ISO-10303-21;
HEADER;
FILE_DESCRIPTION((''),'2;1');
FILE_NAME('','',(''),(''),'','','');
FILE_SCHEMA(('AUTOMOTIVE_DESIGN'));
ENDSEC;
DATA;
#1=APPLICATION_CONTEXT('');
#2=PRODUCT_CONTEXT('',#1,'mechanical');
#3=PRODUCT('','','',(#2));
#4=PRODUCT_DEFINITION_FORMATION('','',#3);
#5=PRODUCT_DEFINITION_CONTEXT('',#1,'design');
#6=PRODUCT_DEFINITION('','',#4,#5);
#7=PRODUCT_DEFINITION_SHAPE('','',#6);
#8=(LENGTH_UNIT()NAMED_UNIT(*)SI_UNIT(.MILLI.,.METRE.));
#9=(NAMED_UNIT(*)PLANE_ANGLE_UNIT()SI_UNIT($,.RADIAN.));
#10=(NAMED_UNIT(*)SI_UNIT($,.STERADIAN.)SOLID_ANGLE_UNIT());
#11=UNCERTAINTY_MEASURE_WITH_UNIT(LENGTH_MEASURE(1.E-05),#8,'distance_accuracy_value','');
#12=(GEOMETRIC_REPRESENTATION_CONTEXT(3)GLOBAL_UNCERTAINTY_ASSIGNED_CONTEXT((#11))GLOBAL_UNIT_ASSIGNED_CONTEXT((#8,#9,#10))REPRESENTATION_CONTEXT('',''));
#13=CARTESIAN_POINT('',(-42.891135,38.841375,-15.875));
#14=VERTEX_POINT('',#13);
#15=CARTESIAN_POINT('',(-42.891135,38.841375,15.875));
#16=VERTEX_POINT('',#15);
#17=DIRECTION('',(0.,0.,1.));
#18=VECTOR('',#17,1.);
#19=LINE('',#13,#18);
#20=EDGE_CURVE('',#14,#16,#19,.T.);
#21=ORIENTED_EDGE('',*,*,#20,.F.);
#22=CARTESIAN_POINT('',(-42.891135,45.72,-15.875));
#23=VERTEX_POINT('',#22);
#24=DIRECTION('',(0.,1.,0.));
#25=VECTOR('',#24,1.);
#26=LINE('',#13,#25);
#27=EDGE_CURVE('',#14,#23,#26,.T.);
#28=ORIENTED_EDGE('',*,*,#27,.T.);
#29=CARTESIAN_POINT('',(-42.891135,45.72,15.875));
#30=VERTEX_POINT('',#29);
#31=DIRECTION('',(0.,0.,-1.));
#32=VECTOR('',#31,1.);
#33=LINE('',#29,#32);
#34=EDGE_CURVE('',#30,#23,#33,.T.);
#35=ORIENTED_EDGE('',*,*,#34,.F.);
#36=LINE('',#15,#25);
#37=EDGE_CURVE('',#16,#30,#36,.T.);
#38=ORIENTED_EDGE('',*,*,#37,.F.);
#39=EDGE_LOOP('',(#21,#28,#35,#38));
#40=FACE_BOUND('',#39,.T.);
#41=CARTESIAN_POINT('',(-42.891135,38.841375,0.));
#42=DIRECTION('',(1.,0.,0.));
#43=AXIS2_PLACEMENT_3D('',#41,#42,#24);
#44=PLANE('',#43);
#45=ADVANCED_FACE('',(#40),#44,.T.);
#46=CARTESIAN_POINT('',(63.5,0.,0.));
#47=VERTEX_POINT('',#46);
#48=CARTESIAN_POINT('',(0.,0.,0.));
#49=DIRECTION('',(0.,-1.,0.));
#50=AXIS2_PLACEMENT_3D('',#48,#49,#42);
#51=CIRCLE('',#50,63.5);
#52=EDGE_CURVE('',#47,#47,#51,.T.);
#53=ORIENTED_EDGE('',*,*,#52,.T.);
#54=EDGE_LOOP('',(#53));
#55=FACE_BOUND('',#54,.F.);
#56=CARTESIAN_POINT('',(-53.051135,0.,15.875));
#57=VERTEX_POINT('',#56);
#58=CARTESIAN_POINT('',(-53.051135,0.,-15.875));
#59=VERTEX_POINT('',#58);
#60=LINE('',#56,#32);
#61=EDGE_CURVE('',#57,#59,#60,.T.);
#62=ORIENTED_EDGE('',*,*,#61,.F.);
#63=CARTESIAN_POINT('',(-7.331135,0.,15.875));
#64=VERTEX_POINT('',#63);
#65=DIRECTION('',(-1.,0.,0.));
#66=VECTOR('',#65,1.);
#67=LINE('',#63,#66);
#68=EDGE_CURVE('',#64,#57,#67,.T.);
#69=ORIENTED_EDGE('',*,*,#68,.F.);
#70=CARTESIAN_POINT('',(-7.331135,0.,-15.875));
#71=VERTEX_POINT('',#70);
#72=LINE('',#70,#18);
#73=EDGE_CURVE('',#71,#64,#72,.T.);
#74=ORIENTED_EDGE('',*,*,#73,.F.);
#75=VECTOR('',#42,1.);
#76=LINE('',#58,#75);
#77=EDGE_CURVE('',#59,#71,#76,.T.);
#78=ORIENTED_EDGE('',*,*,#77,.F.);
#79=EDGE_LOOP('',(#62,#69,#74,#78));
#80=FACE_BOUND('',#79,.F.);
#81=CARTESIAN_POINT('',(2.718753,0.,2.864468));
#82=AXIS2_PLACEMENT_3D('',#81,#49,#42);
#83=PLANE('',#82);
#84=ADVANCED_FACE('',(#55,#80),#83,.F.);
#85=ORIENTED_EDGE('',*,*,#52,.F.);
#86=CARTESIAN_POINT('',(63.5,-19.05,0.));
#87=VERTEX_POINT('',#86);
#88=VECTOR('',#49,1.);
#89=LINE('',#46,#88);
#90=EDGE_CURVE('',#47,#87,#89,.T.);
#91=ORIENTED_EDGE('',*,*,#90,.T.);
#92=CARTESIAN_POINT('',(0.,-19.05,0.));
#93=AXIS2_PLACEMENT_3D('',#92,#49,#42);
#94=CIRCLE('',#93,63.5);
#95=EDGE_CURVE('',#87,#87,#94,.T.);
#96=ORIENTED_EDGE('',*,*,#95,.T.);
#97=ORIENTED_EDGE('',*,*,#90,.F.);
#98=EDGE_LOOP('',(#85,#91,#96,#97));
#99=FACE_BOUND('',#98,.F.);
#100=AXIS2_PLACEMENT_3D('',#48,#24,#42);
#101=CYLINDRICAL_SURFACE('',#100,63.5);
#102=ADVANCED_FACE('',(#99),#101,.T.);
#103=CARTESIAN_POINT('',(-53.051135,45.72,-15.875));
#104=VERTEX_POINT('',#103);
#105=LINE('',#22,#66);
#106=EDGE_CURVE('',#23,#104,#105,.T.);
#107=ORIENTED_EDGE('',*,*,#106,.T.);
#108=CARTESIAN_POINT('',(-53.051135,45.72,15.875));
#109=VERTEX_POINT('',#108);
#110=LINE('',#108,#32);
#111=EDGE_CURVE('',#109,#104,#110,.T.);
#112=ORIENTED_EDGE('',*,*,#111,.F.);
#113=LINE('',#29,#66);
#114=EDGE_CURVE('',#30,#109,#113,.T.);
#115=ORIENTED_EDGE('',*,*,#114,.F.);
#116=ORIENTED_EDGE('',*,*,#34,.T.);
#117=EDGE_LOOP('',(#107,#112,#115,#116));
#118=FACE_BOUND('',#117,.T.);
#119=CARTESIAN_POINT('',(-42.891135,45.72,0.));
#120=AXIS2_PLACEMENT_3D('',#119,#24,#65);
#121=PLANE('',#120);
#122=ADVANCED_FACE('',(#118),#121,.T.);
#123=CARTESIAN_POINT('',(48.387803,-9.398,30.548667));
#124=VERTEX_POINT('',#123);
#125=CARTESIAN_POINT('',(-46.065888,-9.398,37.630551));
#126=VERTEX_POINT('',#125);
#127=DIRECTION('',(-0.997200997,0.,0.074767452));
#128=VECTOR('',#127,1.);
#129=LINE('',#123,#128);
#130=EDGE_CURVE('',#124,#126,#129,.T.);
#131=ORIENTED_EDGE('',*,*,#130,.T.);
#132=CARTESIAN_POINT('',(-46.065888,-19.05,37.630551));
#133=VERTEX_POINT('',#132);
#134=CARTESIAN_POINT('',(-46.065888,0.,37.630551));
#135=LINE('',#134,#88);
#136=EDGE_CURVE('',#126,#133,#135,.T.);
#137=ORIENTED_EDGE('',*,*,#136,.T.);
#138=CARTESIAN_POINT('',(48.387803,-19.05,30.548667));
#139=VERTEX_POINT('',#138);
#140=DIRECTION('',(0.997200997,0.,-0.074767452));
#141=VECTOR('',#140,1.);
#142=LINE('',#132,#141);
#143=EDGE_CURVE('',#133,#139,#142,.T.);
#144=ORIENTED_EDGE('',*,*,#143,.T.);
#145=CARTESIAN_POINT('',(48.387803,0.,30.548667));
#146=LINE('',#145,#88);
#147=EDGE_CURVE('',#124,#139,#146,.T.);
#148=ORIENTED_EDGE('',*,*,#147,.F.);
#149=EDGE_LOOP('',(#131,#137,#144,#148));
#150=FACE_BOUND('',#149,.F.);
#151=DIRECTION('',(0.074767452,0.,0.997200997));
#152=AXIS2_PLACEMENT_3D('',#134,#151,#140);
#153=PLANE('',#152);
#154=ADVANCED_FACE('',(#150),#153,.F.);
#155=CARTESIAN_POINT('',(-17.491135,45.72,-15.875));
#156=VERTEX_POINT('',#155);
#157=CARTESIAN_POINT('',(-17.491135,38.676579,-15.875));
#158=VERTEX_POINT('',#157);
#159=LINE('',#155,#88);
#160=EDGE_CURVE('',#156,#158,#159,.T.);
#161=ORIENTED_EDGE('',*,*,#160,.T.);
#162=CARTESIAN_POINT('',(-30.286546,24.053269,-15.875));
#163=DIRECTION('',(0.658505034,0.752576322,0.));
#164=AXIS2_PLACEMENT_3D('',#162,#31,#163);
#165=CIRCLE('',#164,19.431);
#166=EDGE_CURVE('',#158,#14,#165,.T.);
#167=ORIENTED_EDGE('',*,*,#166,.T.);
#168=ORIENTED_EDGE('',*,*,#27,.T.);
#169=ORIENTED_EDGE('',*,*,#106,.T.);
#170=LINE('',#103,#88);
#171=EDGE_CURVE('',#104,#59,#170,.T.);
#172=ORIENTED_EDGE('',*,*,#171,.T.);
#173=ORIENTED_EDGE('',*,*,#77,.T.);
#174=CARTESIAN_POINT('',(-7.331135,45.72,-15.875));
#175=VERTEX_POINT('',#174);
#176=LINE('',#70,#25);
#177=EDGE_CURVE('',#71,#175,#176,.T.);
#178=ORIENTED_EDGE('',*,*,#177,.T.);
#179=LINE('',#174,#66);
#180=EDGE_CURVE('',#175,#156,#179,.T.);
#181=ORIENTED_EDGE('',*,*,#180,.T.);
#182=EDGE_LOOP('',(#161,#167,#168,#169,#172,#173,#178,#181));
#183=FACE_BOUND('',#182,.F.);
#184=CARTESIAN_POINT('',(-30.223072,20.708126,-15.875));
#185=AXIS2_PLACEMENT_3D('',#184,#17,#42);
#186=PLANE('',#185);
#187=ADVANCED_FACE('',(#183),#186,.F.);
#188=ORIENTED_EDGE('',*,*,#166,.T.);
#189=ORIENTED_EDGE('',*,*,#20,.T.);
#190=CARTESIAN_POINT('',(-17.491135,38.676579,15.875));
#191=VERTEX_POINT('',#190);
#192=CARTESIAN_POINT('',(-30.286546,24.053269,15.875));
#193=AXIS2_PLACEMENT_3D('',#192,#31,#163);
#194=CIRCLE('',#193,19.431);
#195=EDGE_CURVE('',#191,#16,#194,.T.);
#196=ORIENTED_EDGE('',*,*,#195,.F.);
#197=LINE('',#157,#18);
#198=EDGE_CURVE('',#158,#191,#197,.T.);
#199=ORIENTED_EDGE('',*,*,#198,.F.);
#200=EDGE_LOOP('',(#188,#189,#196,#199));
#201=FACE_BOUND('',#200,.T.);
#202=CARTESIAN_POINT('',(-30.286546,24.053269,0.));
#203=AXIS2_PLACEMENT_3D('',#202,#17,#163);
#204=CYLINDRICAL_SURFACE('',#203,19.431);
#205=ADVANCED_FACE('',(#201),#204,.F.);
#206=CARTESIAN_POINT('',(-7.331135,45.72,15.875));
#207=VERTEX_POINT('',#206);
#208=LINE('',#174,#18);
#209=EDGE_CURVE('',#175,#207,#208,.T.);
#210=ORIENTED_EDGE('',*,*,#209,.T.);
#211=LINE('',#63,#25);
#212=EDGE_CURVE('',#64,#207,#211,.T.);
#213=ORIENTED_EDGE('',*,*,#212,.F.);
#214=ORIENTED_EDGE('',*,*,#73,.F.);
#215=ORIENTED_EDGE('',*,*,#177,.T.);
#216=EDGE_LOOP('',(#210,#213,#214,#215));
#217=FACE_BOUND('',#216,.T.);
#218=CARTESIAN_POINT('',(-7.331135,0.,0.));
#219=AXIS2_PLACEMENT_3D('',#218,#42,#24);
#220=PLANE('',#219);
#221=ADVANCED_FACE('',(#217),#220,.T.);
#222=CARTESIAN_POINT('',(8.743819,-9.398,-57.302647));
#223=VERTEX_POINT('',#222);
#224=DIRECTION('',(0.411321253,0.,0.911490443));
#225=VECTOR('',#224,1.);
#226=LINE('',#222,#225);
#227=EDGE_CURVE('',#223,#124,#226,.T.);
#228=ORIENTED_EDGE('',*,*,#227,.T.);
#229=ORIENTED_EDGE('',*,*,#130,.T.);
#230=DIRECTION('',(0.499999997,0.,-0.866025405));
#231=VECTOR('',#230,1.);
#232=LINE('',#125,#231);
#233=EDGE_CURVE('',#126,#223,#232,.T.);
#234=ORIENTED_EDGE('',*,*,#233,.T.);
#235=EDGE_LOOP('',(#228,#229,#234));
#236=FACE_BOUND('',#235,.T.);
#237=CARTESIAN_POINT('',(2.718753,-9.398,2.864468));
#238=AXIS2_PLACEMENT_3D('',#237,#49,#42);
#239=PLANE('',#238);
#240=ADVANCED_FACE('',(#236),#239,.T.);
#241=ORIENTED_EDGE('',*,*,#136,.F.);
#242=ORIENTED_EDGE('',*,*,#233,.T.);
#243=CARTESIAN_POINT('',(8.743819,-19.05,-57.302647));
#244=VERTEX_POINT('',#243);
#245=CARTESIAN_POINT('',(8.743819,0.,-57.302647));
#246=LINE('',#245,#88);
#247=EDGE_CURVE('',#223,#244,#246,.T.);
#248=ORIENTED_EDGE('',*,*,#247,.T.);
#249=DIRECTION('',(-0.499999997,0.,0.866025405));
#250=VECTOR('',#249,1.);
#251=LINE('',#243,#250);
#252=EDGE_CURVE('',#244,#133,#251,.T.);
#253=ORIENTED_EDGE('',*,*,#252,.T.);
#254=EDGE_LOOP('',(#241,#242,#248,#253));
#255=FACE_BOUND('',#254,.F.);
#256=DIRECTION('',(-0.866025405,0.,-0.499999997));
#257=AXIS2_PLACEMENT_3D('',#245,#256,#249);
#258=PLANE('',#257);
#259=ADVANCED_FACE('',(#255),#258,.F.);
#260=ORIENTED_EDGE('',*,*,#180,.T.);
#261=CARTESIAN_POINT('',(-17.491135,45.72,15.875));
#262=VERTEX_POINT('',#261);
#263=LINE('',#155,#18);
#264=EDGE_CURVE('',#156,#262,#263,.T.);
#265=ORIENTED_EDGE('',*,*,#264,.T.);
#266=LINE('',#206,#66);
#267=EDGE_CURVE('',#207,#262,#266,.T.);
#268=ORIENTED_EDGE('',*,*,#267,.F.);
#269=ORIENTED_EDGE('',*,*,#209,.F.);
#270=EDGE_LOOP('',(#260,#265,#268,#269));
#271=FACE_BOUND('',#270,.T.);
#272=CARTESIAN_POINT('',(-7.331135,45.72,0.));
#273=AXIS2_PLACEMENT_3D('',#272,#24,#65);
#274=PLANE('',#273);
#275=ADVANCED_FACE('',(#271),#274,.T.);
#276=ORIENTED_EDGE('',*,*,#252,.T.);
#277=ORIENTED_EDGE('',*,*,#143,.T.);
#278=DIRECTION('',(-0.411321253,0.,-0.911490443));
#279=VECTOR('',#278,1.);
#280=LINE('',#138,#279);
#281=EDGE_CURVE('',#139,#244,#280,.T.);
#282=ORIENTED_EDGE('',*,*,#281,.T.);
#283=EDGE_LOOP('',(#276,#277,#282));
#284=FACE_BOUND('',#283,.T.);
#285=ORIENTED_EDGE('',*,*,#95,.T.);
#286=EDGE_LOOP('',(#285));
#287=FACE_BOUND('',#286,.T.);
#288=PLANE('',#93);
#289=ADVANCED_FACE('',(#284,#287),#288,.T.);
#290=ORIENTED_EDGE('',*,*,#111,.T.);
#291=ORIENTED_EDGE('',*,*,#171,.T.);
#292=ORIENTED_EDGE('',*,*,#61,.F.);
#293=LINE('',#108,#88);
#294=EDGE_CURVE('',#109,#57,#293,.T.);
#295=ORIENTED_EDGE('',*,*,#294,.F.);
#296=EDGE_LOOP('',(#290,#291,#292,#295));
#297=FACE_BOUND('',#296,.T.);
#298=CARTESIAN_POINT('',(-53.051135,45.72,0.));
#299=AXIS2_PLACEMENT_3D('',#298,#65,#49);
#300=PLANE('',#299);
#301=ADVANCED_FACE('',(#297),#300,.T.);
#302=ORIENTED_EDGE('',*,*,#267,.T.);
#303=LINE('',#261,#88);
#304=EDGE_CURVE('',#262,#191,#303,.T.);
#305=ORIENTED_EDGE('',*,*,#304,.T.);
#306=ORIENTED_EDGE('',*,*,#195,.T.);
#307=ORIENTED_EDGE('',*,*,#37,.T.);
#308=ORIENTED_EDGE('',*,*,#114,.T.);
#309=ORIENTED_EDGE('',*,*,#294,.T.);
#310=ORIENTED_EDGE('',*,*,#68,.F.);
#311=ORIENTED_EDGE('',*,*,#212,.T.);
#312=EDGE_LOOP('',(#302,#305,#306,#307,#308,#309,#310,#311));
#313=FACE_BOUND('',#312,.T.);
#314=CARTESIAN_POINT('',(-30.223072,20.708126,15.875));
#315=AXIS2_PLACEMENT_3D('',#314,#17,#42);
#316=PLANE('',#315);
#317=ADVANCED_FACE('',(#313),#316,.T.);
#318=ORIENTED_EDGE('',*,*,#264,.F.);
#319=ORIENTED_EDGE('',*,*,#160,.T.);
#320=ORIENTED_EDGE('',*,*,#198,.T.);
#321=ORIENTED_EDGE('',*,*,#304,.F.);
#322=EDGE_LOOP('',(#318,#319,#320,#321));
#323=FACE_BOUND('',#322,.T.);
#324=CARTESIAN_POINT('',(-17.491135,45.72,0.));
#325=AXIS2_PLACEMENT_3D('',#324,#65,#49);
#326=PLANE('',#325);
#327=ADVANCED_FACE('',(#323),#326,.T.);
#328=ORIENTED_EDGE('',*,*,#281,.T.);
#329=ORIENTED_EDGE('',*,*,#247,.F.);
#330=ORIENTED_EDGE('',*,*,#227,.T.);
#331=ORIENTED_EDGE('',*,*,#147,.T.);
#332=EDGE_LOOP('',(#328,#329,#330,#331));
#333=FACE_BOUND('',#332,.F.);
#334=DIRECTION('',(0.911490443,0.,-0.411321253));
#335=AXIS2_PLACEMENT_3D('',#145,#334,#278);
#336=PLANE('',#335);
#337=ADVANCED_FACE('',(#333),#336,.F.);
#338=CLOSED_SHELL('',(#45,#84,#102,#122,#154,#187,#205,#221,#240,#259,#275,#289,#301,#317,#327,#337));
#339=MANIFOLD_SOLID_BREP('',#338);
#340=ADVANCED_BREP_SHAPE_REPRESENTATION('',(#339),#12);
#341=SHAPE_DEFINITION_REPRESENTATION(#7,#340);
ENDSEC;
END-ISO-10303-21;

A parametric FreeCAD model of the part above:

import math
import FreeCAD as App
import Part
import Sketcher

V = App.Vector
Q = App.Units.Quantity

doc = App.newDocument("Part")
body = doc.addObject("PartDesign::Body", "Body")

# Sketch on XZ plane
sketch1 = doc.addObject("Sketcher::SketchObject", "Sketch")
body.addObject(sketch1)
sketch1.AttachmentSupport = (doc.XZ_Plane, [""])
sketch1.MapMode = "FlatFace"
sketch1.addGeometry([
    Part.Circle(V(0, 0, 0), V(0, 0, 1), 64),
    Part.LineSegment(V(48, 31, 0), V(9, -57, 0)),
    Part.LineSegment(V(9, -57, 0), V(-46, 38, 0)),
    Part.LineSegment(V(-46, 38, 0), V(48, 31, 0)),
], False)
sketch1.addConstraint([
    Sketcher.Constraint("Coincident", 1, 2, 2, 1),
    Sketcher.Constraint("Coincident", 2, 2, 3, 1),
    Sketcher.Constraint("Coincident", 3, 2, 1, 1),
    Sketcher.Constraint("Coincident", 0, 3, -1, 1),
    Sketcher.Constraint("Diameter", 0, Q("5 in")),
    Sketcher.Constraint("Angle", 2, Q("120 deg")),
    Sketcher.Constraint("DistanceY", 1, 2, 2, 2, 94.933198),
    Sketcher.Constraint("Distance", 3, 94.718809),
    Sketcher.Constraint("DistanceX", -1, 1, 1, 2, 8.743819),
    Sketcher.Constraint("DistanceY", -1, 1, 2, 2, 37.630551),
    Sketcher.Constraint("DistanceX", 2, 2, 3, 2, 94.453691),
])
pad1 = doc.addObject("PartDesign::Pad", "Pad")
body.addObject(pad1)
pad1.Profile = sketch1
pad1.Length = Q("0.75 in")

# Sketch on XZ plane
sketch2 = doc.addObject("Sketcher::SketchObject", "Sketch001")
body.addObject(sketch2)
sketch2.AttachmentSupport = (doc.XZ_Plane, [""])
sketch2.MapMode = "FlatFace"
sketch2.addGeometry([
    Part.LineSegment(V(48, 31, 0), V(-46, 38, 0)),
    Part.LineSegment(V(-46, 38, 0), V(9, -57, 0)),
    Part.LineSegment(V(9, -57, 0), V(48, 31, 0)),
], False)
sketch2.addConstraint([
    Sketcher.Constraint("Coincident", 0, 2, 1, 1),
    Sketcher.Constraint("Coincident", 1, 2, 2, 1),
    Sketcher.Constraint("Coincident", 2, 2, 0, 1),
    Sketcher.Constraint("Angle", 1, Q("-60 deg")),
    Sketcher.Constraint("DistanceY", 1, 2, 0, 2, 94.933198),
    Sketcher.Constraint("Distance", 0, 94.718809),
    Sketcher.Constraint("DistanceY", -1, 1, 0, 2, 37.630551),
    Sketcher.Constraint("DistanceX", -1, 1, 1, 2, 8.743819),
    Sketcher.Constraint("DistanceX", 0, 2, 2, 2, 94.453691),
])
pad2 = doc.addObject("PartDesign::Pad", "Pad001")
body.addObject(pad2)
pad2.Profile = sketch2
pad2.Length = Q("0.37 in")

# Sketch on XY plane
sketch3 = doc.addObject("Sketcher::SketchObject", "Sketch002")
body.addObject(sketch3)
sketch3.AttachmentSupport = (doc.XY_Plane, [""])
sketch3.MapMode = "FlatFace"
sketch3.addGeometry([
    Part.LineSegment(V(-53, 0, 0), V(-7, 0, 0)),  # 0
    Part.LineSegment(V(-7, 0, 0), V(-7, 46, 0)),  # 1
    Part.LineSegment(V(-7, 46, 0), V(-17, 46, 0)),  # 2
    Part.LineSegment(V(-17, 46, 0), V(-17, 39, 0)),  # 3
    Part.ArcOfCircle(Part.Circle(V(-30, 24, 0), V(0, 0, 1), 19), math.radians(130), math.radians(409)),  # 4
    Part.LineSegment(V(-43, 39, 0), V(-43, 46, 0)),  # 5
    Part.LineSegment(V(-43, 46, 0), V(-53, 46, 0)),  # 6
    Part.LineSegment(V(-53, 46, 0), V(-53, 0, 0)),  # 7
], False)
sketch3.addConstraint([
    Sketcher.Constraint("Coincident", 0, 2, 1, 1),
    Sketcher.Constraint("Coincident", 1, 2, 2, 1),
    Sketcher.Constraint("Coincident", 2, 2, 3, 1),
    Sketcher.Constraint("Coincident", 3, 2, 4, 2),
    Sketcher.Constraint("Coincident", 4, 1, 5, 1),
    Sketcher.Constraint("Coincident", 5, 2, 6, 1),
    Sketcher.Constraint("Coincident", 6, 2, 7, 1),
    Sketcher.Constraint("Coincident", 7, 2, 0, 1),
    Sketcher.Constraint("Horizontal", 0),
    Sketcher.Constraint("Vertical", 1),
    Sketcher.Constraint("Horizontal", 2),
    Sketcher.Constraint("Vertical", 3),
    Sketcher.Constraint("Vertical", 5),
    Sketcher.Constraint("Horizontal", 6),
    Sketcher.Constraint("Vertical", 7),
    Sketcher.Constraint("PointOnObject", 0, 2, -1),
    Sketcher.Constraint("Horizontal", 2, 2, 5, 2),
    Sketcher.Constraint("Equal", 2, 6),
    Sketcher.Constraint("Equal", 0, 1),
    Sketcher.Constraint("DistanceX", 0, 1, 0, 2, Q("1.8 in")),
    Sketcher.Constraint("DistanceX", 2, 2, 2, 1, Q("0.4 in")),
    Sketcher.Constraint("Radius", 4, Q("0.765 in")),
    Sketcher.Constraint("DistanceY", 3, 2, 3, 1, Q("0.2773 in")),
    Sketcher.Constraint("DistanceY", 5, 1, 5, 2, 6.878625),
    Sketcher.Constraint("DistanceX", 4, 3, -1, 1, 30.286546),
])
pad3 = doc.addObject("PartDesign::Pad", "Pad002")
body.addObject(pad3)
pad3.Profile = sketch3
pad3.Length = Q("1.25 in")
pad3.Midplane = True

# Sketch on XZ plane
sketch4 = doc.addObject("Sketcher::SketchObject", "Sketch003")
body.addObject(sketch4)
sketch4.AttachmentSupport = (doc.XZ_Plane, [""])
sketch4.MapMode = "FlatFace"
sketch4.addGeometry([
    Part.LineSegment(V(49, 32, 0), V(-45, 39, 0)),
    Part.LineSegment(V(-45, 39, 0), V(10, -56, 0)),
    Part.LineSegment(V(10, -56, 0), V(49, 32, 0)),
], False)
sketch4.addConstraint([
    Sketcher.Constraint("Coincident", 0, 2, 1, 1),
    Sketcher.Constraint("Coincident", 1, 2, 2, 1),
    Sketcher.Constraint("Coincident", 2, 2, 0, 1),
    Sketcher.Constraint("Distance", 0, 94.718809),
    Sketcher.Constraint("DistanceY", -1, 1, 0, 2, 38.79497),
    Sketcher.Constraint("DistanceX", -1, 1, 2, 2, 49.277871),
    Sketcher.Constraint("DistanceY", 2, 2, 0, 2, 6.985422),
    Sketcher.Constraint("Distance", 1, 109.619415),
    Sketcher.Constraint("Distance", 2, 96.382046),
])
pad4 = doc.addObject("PartDesign::Pad", "Pad003")
body.addObject(pad4)
pad4.Profile = sketch4
pad4.Length = Q("0.25 in")

doc.recompute()
